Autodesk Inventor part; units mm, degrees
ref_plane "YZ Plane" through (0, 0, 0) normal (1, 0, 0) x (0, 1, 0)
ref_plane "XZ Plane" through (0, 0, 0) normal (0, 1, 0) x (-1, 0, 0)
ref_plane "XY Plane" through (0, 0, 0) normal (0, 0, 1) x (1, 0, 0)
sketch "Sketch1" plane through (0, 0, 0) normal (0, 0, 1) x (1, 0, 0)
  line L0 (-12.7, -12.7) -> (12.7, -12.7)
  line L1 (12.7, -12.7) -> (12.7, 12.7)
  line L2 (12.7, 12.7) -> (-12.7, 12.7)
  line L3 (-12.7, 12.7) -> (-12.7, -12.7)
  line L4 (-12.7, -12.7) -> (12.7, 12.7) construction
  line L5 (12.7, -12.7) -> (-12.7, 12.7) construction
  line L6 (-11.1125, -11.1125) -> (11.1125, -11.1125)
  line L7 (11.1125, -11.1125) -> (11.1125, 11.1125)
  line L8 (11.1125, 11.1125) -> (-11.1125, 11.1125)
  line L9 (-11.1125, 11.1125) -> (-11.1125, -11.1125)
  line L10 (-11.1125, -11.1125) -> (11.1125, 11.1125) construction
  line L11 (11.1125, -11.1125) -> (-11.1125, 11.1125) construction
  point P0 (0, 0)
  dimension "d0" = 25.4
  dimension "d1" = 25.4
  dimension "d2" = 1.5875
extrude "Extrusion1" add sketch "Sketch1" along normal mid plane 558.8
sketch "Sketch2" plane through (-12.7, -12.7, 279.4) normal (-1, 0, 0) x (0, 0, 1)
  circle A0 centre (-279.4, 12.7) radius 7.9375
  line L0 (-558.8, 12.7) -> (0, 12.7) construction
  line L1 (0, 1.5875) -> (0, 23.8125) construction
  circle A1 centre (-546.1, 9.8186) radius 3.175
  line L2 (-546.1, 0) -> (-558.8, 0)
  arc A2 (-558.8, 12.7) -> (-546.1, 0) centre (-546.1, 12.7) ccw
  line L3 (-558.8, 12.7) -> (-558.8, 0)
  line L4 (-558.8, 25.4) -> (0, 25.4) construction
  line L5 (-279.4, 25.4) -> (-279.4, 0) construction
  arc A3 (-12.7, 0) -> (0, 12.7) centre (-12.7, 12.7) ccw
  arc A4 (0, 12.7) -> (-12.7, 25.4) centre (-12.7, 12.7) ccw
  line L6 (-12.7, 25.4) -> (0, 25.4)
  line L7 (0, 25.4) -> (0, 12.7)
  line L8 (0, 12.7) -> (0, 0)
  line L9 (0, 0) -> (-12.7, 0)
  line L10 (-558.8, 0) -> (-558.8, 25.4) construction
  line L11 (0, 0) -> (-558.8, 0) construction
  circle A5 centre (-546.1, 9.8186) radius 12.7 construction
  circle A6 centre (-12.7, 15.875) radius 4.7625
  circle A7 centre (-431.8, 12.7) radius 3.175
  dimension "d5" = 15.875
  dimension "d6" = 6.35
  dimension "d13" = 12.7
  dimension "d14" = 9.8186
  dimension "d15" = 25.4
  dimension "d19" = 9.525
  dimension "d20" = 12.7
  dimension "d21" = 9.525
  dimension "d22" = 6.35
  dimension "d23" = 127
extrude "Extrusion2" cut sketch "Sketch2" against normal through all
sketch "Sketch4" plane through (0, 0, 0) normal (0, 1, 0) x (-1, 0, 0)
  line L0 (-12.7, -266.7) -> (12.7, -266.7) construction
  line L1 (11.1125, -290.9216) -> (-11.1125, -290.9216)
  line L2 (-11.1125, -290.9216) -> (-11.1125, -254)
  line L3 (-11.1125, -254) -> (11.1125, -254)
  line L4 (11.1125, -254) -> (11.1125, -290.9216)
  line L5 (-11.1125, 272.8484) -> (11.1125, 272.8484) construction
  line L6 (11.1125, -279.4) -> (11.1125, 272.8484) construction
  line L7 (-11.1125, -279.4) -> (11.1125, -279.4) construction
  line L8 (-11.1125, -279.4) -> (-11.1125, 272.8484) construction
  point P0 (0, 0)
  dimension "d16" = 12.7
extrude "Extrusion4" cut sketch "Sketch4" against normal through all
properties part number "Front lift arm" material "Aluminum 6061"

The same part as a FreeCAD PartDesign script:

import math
import FreeCAD as App
import Part
import Sketcher
from FreeCAD import Vector
Q = App.Units.Quantity


def add_polygon(sketch, points):
    """Adds a closed chain of lines whose ends are joined by coincident constraints."""
    first, n = sketch.GeometryCount, len(points)
    for a, b in zip(points, points[1:] + points[:1]):
        sketch.addGeometry(Part.LineSegment(App.Vector(*a, 0), App.Vector(*b, 0)), False)
    for i in range(n):
        sketch.addConstraint(Sketcher.Constraint("Coincident", first + i, 2, first + (i + 1) % n, 1))

doc = App.newDocument("Part")
body = doc.addObject("PartDesign::Body", "Body")

sketch1 = body.newObject("Sketcher::SketchObject", "Sketch")
sketch1.AttachmentSupport = (doc.getObject("XY_Plane"), [""])
sketch1.MapMode = "FlatFace"
add_polygon(sketch1, [(-13, 13), (-13, -13), (13, -13), (13, 13)])
add_polygon(sketch1, [(11, -11), (-11, -11), (-11, 11), (11, 11)])
sketch1.addConstraint(Sketcher.Constraint("Vertical", 0))
sketch1.addConstraint(Sketcher.Constraint("Horizontal", 1))
sketch1.addConstraint(Sketcher.Constraint("Vertical", 2))
sketch1.addConstraint(Sketcher.Constraint("Horizontal", 3))
sketch1.addConstraint(Sketcher.Constraint("Horizontal", 4))
sketch1.addConstraint(Sketcher.Constraint("Vertical", 5))
sketch1.addConstraint(Sketcher.Constraint("Horizontal", 6))
sketch1.addConstraint(Sketcher.Constraint("Vertical", 7))
sketch1.addConstraint(Sketcher.Constraint("Symmetric", 0, 2, 2, 2, -1, 1))
sketch1.addConstraint(Sketcher.Constraint("Symmetric", 4, 2, 6, 2, -1, 1))
sketch1.addConstraint(Sketcher.Constraint("Equal", 3, 0))
sketch1.addConstraint(Sketcher.Constraint("Equal", 6, 5))
sketch1.addConstraint(Sketcher.Constraint("DistanceX", 1, 1, 1, 2, Q("1 in")))
sketch1.addConstraint(Sketcher.Constraint("DistanceX", 0, 2, 4, 2, Q("0.0625 in")))
pad1 = body.newObject("PartDesign::Pad", "Pad")
pad1.Profile = sketch1
pad1.Length = Q("22 in")
pad1.Midplane = True

sketch2 = body.newObject("Sketcher::SketchObject", "Sketch001")
sketch2.AttachmentSupport = (doc.getObject("YZ_Plane"), [""])
sketch2.MapMode = "FlatFace"
sketch2.AttachmentOffset = App.Placement(Vector(0, 0, -0.5 * 25.4), App.Rotation())
sketch2.addGeometry(Part.Circle(Vector(0, 0, 0), Vector(0, 0, 1), 7.9), False)
sketch2.addGeometry(Part.Circle(Vector(-2.9, -266.7, 0), Vector(0, 0, 1), 3.2), False)
sketch2.addGeometry(Part.LineSegment(Vector(-12.7, -279.4, 0), Vector(-12.7, -266.7, 0)), False)
sketch2.addGeometry(Part.ArcOfCircle(Part.Circle(Vector(0, -266.7, 0), Vector(0, 0, 1), 12.7), math.radians(180), math.radians(270)), False)
sketch2.addGeometry(Part.LineSegment(Vector(0, -279.4, 0), Vector(-12.7, -279.4, 0)), False)
sketch2.addGeometry(Part.ArcOfCircle(Part.Circle(Vector(0, 266.7, 0), Vector(0, 0, 1), 12.7), math.radians(0), math.radians(90)), False)
sketch2.addGeometry(Part.LineSegment(Vector(0, 279.4, 0), Vector(12.7, 279.4, 0)), False)
sketch2.addGeometry(Part.LineSegment(Vector(12.7, 279.4, 0), Vector(12.7, 266.7, 0)), False)
sketch2.addGeometry(Part.ArcOfCircle(Part.Circle(Vector(0, 266.7, 0), Vector(0, 0, 1), 12.7), math.radians(90), math.radians(180)), False)
sketch2.addGeometry(Part.LineSegment(Vector(-12.7, 266.7, 0), Vector(-12.7, 279.4, 0)), False)
sketch2.addGeometry(Part.LineSegment(Vector(-12.7, 279.4, 0), Vector(0, 279.4, 0)), False)
sketch2.addGeometry(Part.Circle(Vector(3.2, 266.7, 0), Vector(0, 0, 1), 4.8), False)
sketch2.addGeometry(Part.Circle(Vector(0, -152.4, 0), Vector(0, 0, 1), 3.2), False)
sketch2.addConstraint(Sketcher.Constraint("Tangent", 2, 2, 3, 1))
sketch2.addConstraint(Sketcher.Constraint("Tangent", 3, 2, 4, 1))
sketch2.addConstraint(Sketcher.Constraint("Coincident", 4, 2, 2, 1))
sketch2.addConstraint(Sketcher.Constraint("Tangent", 5, 2, 6, 1))
sketch2.addConstraint(Sketcher.Constraint("Coincident", 6, 2, 7, 1))
sketch2.addConstraint(Sketcher.Constraint("Tangent", 7, 2, 5, 1))
sketch2.addConstraint(Sketcher.Constraint("Tangent", 8, 2, 9, 1))
sketch2.addConstraint(Sketcher.Constraint("Coincident", 9, 2, 10, 1))
sketch2.addConstraint(Sketcher.Constraint("Tangent", 10, 2, 8, 1))
sketch2.addConstraint(Sketcher.Constraint("Vertical", 2))
sketch2.addConstraint(Sketcher.Constraint("Horizontal", 4))
sketch2.addConstraint(Sketcher.Constraint("Horizontal", 6))
sketch2.addConstraint(Sketcher.Constraint("Vertical", 7))
sketch2.addConstraint(Sketcher.Constraint("Vertical", 9))
sketch2.addConstraint(Sketcher.Constraint("Horizontal", 10))
sketch2.addConstraint(Sketcher.Constraint("Coincident", 0, 3, -1, 1))
sketch2.addConstraint(Sketcher.Constraint("Coincident", 8, 3, 5, 3))
sketch2.addConstraint(Sketcher.Constraint("Equal", 3, 5))
sketch2.addConstraint(Sketcher.Constraint("Equal", 5, 8))
sketch2.addConstraint(Sketcher.Constraint("Equal", 1, 12))
sketch2.addConstraint(Sketcher.Constraint("Symmetric", 3, 3, 5, 3, -1, 1))
sketch2.addConstraint(Sketcher.Constraint("PointOnObject", 3, 3, -2))
sketch2.addConstraint(Sketcher.Constraint("PointOnObject", 12, 3, -2))
sketch2.addConstraint(Sketcher.Constraint("Horizontal", 1, 3, 3, 3))
sketch2.addConstraint(Sketcher.Constraint("Horizontal", 8, 3, 11, 3))
sketch2.addConstraint(Sketcher.Constraint("Radius", 3, Q("0.5 in")))
sketch2.addConstraint(Sketcher.Constraint("Diameter", 1, Q("0.25 in")))
sketch2.addConstraint(Sketcher.Constraint("Diameter", 0, Q("0.625 in")))
sketch2.addConstraint(Sketcher.Constraint("Diameter", 11, Q("0.375 in")))
sketch2.addConstraint(Sketcher.Constraint("DistanceY", 3, 2, 12, 3, Q("5 in")))
sketch2.addConstraint(Sketcher.Constraint("DistanceY", 12, 3, -1, 1, Q("6 in")))
sketch2.addConstraint(Sketcher.Constraint("DistanceX", 11, 3, 6, 2, Q("0.375 in")))
sketch2.addConstraint(Sketcher.Constraint("DistanceX", 2, 2, 1, 3, 9.8186))
pocket1 = body.newObject("PartDesign::Pocket", "Pocket")
pocket1.Profile = sketch2
pocket1.Type = "ThroughAll"
pocket1.Reversed = True

sketch3 = body.newObject("Sketcher::SketchObject", "Sketch002")
sketch3.AttachmentSupport = (doc.getObject("XZ_Plane"), [""])
sketch3.MapMode = "FlatFace"
add_polygon(sketch3, [(11, -291), (-11, -291), (-11, -254), (11, -254)])
sketch3.addConstraint(Sketcher.Constraint("Horizontal", 0))
sketch3.addConstraint(Sketcher.Constraint("Vertical", 1))
sketch3.addConstraint(Sketcher.Constraint("Horizontal", 2))
sketch3.addConstraint(Sketcher.Constraint("Vertical", 3))
sketch3.addConstraint(Sketcher.Constraint("DistanceY", 1, 2, -1, 1, Q("10 in")))
sketch3.addConstraint(Sketcher.Constraint("DistanceX", 0, 2, 0, 1, Q("0.875 in")))
sketch3.addConstraint(Sketcher.Constraint("DistanceY", 1, 1, 1, 2, Q("1.4536 in")))
sketch3.addConstraint(Sketcher.Constraint("DistanceX", 0, 2, -1, 1, Q("0.4375 in")))
pocket2 = body.newObject("PartDesign::Pocket", "Pocket001")
pocket2.Profile = sketch3
pocket2.Type = "ThroughAll"
pocket2.Reversed = True

doc.recompute()
